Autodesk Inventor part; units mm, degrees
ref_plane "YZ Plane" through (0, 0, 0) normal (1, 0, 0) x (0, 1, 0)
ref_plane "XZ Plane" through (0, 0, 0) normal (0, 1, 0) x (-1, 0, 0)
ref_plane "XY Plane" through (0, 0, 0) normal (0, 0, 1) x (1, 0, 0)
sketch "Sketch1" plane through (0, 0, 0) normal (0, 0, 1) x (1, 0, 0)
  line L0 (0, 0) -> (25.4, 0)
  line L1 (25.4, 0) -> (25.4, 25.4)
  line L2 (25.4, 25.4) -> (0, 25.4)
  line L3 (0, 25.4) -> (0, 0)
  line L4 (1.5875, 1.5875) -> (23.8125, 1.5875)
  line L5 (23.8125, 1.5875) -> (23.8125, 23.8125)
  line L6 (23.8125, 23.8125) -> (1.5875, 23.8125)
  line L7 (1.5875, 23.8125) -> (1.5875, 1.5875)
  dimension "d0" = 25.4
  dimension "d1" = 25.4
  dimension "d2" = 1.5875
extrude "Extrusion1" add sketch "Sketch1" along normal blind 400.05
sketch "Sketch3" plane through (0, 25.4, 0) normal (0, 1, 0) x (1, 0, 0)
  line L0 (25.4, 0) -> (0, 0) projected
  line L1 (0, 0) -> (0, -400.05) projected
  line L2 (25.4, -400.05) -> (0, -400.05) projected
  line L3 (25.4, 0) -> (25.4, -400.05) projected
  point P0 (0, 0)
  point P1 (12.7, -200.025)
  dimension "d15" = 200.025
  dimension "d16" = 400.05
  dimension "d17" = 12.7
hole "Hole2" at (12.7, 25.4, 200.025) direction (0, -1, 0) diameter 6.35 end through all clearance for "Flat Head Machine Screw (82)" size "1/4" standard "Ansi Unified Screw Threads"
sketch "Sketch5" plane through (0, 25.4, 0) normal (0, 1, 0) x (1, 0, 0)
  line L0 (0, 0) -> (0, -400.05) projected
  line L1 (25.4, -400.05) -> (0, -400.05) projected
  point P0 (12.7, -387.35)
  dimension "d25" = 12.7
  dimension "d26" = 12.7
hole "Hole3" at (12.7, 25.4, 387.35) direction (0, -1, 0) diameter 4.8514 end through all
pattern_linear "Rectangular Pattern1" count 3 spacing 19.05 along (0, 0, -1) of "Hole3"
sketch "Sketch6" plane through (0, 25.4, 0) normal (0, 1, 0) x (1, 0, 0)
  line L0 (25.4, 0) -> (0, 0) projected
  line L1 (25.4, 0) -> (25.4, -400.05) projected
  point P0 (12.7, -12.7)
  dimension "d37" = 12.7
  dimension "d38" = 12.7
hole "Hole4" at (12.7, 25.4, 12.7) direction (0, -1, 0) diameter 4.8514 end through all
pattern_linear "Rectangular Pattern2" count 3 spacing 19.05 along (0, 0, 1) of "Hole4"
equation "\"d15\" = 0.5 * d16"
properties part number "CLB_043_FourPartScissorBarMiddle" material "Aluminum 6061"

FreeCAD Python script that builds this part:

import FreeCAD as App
import Part
import Sketcher

V = App.Vector
Q = App.Units.Quantity

doc = App.newDocument("Part")
body = doc.addObject("PartDesign::Body", "Body")

# Sketch on XY plane
sketch1 = body.newObject("Sketcher::SketchObject", "Sketch")
sketch1.AttachmentSupport = (doc.getObject("XY_Plane"), [""])
sketch1.MapMode = "FlatFace"
sketch1.addGeometry(Part.LineSegment(V(0, 25, 0), V(0, 0, 0)), False)
sketch1.addGeometry(Part.LineSegment(V(0, 0, 0), V(25, 0, 0)), False)
sketch1.addGeometry(Part.LineSegment(V(25, 0, 0), V(25, 25, 0)), False)
sketch1.addGeometry(Part.LineSegment(V(25, 25, 0), V(0, 25, 0)), False)
sketch1.addGeometry(Part.LineSegment(V(24, 2, 0), V(2, 2, 0)), False)
sketch1.addGeometry(Part.LineSegment(V(2, 2, 0), V(2, 24, 0)), False)
sketch1.addGeometry(Part.LineSegment(V(2, 24, 0), V(24, 24, 0)), False)
sketch1.addGeometry(Part.LineSegment(V(24, 24, 0), V(24, 2, 0)), False)
sketch1.addConstraint(Sketcher.Constraint("Coincident", 0, 2, 1, 1))
sketch1.addConstraint(Sketcher.Constraint("Coincident", 1, 2, 2, 1))
sketch1.addConstraint(Sketcher.Constraint("Coincident", 2, 2, 3, 1))
sketch1.addConstraint(Sketcher.Constraint("Coincident", 3, 2, 0, 1))
sketch1.addConstraint(Sketcher.Constraint("Coincident", 4, 2, 5, 1))
sketch1.addConstraint(Sketcher.Constraint("Coincident", 5, 2, 6, 1))
sketch1.addConstraint(Sketcher.Constraint("Coincident", 6, 2, 7, 1))
sketch1.addConstraint(Sketcher.Constraint("Coincident", 7, 2, 4, 1))
sketch1.addConstraint(Sketcher.Constraint("Vertical", 0))
sketch1.addConstraint(Sketcher.Constraint("Horizontal", 1))
sketch1.addConstraint(Sketcher.Constraint("Vertical", 2))
sketch1.addConstraint(Sketcher.Constraint("Horizontal", 3))
sketch1.addConstraint(Sketcher.Constraint("Horizontal", 4))
sketch1.addConstraint(Sketcher.Constraint("Vertical", 5))
sketch1.addConstraint(Sketcher.Constraint("Horizontal", 6))
sketch1.addConstraint(Sketcher.Constraint("Vertical", 7))
sketch1.addConstraint(Sketcher.Constraint("Coincident", 0, 2, -1, 1))
sketch1.addConstraint(Sketcher.Constraint("Equal", 3, 0))
sketch1.addConstraint(Sketcher.Constraint("Equal", 6, 5))
sketch1.addConstraint(Sketcher.Constraint("DistanceX", 1, 1, 1, 2, Q("1 in")))
sketch1.addConstraint(Sketcher.Constraint("DistanceX", -1, 1, 4, 2, Q("0.0625 in")))
sketch1.addConstraint(Sketcher.Constraint("DistanceY", -1, 1, 4, 2, Q("0.0625 in")))
sketch1.addConstraint(Sketcher.Constraint("DistanceY", 5, 2, 3, 2, Q("0.0625 in")))
pad1 = body.newObject("PartDesign::Pad", "Pad")
pad1.Profile = sketch1
pad1.Length = Q("15.75 in")

# Sketch on XZ plane
sketch2 = body.newObject("Sketcher::SketchObject", "Sketch001")
sketch2.AttachmentSupport = (doc.getObject("XZ_Plane"), [""])
sketch2.MapMode = "FlatFace"
sketch2.AttachmentOffset = App.Placement(V(0, 0, -1 * 25.4), App.Rotation())
sketch2.addGeometry(Part.Circle(V(12.7, 200, 0), V(0, 0, 1), 3.2), False)
sketch2.addConstraint(Sketcher.Constraint("Diameter", 0, Q("0.25 in")))
sketch2.addConstraint(Sketcher.Constraint("DistanceX", -1, 1, 0, 3, Q("0.5 in")))
sketch2.addConstraint(Sketcher.Constraint("DistanceY", -1, 1, 0, 3, Q("7.875 in")))
doc.recompute()
hole = body.newObject("PartDesign::Hole", "Hole")
hole.Profile = sketch2
hole.ThreadType = "None"
hole.Diameter = Q("0.25 in")
hole.DepthType = "ThroughAll"
hole.Reversed = True

# Sketch on XZ plane
sketch3 = body.newObject("Sketcher::SketchObject", "Sketch002")
sketch3.AttachmentSupport = (doc.getObject("XZ_Plane"), [""])
sketch3.MapMode = "FlatFace"
sketch3.AttachmentOffset = App.Placement(V(0, 0, -1 * 25.4), App.Rotation())
sketch3.addGeometry(Part.Circle(V(12.7, 387.4, 0), V(0, 0, 1), 2.4), False)
sketch3.addConstraint(Sketcher.Constraint("Diameter", 0, Q("0.191 in")))
sketch3.addConstraint(Sketcher.Constraint("DistanceX", -1, 1, 0, 3, Q("0.5 in")))
sketch3.addConstraint(Sketcher.Constraint("DistanceY", -1, 1, 0, 3, Q("15.25 in")))
doc.recompute()
hole2 = body.newObject("PartDesign::Hole", "Hole001")
hole2.Profile = sketch3
hole2.ThreadType = "None"
hole2.Diameter = Q("0.191 in")
hole2.DepthType = "ThroughAll"
hole2.Reversed = True
doc.recompute()

linearpattern = body.newObject("PartDesign::LinearPattern", "LinearPattern")
linearpattern.Originals = [hole2]
linearpattern.Direction = (doc.getObject("Z_Axis"), [""])
linearpattern.Mode = "offset"
linearpattern.Offset = Q("0.75 in")
linearpattern.Occurrences = 3
linearpattern.Reversed = True
body.Tip = linearpattern

# Sketch on XZ plane
sketch4 = body.newObject("Sketcher::SketchObject", "Sketch003")
sketch4.AttachmentSupport = (doc.getObject("XZ_Plane"), [""])
sketch4.MapMode = "FlatFace"
sketch4.AttachmentOffset = App.Placement(V(0, 0, -1 * 25.4), App.Rotation())
sketch4.addGeometry(Part.Circle(V(12.7, 12.7, 0), V(0, 0, 1), 2.4), False)
sketch4.addConstraint(Sketcher.Constraint("Diameter", 0, Q("0.191 in")))
sketch4.addConstraint(Sketcher.Constraint("DistanceX", -1, 1, 0, 3, Q("0.5 in")))
sketch4.addConstraint(Sketcher.Constraint("DistanceY", -1, 1, 0, 3, Q("0.5 in")))
doc.recompute()
hole3 = body.newObject("PartDesign::Hole", "Hole002")
hole3.Profile = sketch4
hole3.ThreadType = "None"
hole3.Diameter = Q("0.191 in")
hole3.DepthType = "ThroughAll"
hole3.Reversed = True
doc.recompute()

linearpattern2 = body.newObject("PartDesign::LinearPattern", "LinearPattern001")
linearpattern2.Originals = [hole3]
linearpattern2.Direction = (doc.getObject("Z_Axis"), [""])
linearpattern2.Mode = "offset"
linearpattern2.Offset = Q("0.75 in")
linearpattern2.Occurrences = 3
body.Tip = linearpattern2

doc.recompute()
